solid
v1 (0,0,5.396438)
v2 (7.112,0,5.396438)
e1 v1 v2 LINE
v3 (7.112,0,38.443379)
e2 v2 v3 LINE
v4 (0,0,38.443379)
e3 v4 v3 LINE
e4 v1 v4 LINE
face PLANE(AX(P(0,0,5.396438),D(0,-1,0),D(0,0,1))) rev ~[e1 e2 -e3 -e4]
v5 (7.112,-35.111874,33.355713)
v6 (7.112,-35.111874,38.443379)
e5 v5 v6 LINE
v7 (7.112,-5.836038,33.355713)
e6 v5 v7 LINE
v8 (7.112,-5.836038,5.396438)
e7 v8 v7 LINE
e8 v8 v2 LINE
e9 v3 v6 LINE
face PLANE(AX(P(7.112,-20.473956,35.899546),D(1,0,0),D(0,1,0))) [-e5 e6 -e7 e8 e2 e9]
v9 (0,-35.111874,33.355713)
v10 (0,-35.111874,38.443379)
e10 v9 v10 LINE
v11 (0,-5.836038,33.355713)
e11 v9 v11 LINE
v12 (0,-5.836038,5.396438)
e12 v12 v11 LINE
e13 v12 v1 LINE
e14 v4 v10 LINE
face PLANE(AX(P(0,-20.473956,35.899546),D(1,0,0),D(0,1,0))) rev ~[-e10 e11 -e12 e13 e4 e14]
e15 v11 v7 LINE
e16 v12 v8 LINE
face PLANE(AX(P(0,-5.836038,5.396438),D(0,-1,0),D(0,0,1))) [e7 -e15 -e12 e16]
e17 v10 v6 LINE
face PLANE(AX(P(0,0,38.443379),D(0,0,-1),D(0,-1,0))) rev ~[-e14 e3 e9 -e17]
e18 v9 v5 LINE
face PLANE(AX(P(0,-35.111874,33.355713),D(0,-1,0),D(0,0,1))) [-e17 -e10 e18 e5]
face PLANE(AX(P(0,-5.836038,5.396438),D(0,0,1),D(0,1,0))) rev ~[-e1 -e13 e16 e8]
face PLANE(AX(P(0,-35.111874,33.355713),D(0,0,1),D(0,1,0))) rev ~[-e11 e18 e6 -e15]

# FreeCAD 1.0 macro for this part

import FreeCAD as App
import Part
import Sketcher
Q = App.Units.Quantity


def add_polygon(sketch, points):
    """Adds a closed chain of lines whose ends are joined by coincident constraints."""
    first, n = sketch.GeometryCount, len(points)
    for a, b in zip(points, points[1:] + points[:1]):
        sketch.addGeometry(Part.LineSegment(App.Vector(*a, 0), App.Vector(*b, 0)), False)
    for i in range(n):
        sketch.addConstraint(Sketcher.Constraint("Coincident", first + i, 2, first + (i + 1) % n, 1))

doc = App.newDocument("Part")
params = doc.addObject("Spreadsheet::Sheet", "Params")
for row, (alias, value) in enumerate([
    ("pad1_length", "0.28 in"),
], start=1):
    params.set(f"A{row}", alias)
    params.set(f"B{row}", "=" + value)
    params.setAlias(f"B{row}", alias)

body = doc.addObject("PartDesign::Body", "Body")

sketch1 = body.newObject("Sketcher::SketchObject", "Sketch")
sketch1.AttachmentSupport = (doc.getObject("YZ_Plane"), [""])
sketch1.MapMode = "FlatFace"
add_polygon(sketch1, [(-35, 38), (-35, 33), (-6, 33), (-6, 5), (0, 5), (0, 38)])
sketch1.addConstraint(Sketcher.Constraint("Vertical", 0))
sketch1.addConstraint(Sketcher.Constraint("Horizontal", 1))
sketch1.addConstraint(Sketcher.Constraint("Vertical", 2))
sketch1.addConstraint(Sketcher.Constraint("Horizontal", 3))
sketch1.addConstraint(Sketcher.Constraint("Vertical", 4))
sketch1.addConstraint(Sketcher.Constraint("Horizontal", 5))
sketch1.addConstraint(Sketcher.Constraint("PointOnObject", 3, 2, -2))
sketch1.addConstraint(Sketcher.Constraint("DistanceX", 3, 1, 3, 2, Q("5.836038 mm")))
sketch1.addConstraint(Sketcher.Constraint("DistanceY", 4, 1, 4, 2, Q("33.046941 mm")))
sketch1.addConstraint(Sketcher.Constraint("DistanceX", 1, 1, 1, 2, Q("29.275836 mm")))
sketch1.addConstraint(Sketcher.Constraint("DistanceY", 0, 2, 0, 1, Q("5.087666 mm")))
sketch1.addConstraint(Sketcher.Constraint("DistanceY", -1, 1, 4, 2, Q("38.443379 mm")))
pad1 = body.newObject("PartDesign::Pad", "Pad")
pad1.Profile = sketch1
pad1.setExpression("Length", "Params.pad1_length")

doc.recompute()
